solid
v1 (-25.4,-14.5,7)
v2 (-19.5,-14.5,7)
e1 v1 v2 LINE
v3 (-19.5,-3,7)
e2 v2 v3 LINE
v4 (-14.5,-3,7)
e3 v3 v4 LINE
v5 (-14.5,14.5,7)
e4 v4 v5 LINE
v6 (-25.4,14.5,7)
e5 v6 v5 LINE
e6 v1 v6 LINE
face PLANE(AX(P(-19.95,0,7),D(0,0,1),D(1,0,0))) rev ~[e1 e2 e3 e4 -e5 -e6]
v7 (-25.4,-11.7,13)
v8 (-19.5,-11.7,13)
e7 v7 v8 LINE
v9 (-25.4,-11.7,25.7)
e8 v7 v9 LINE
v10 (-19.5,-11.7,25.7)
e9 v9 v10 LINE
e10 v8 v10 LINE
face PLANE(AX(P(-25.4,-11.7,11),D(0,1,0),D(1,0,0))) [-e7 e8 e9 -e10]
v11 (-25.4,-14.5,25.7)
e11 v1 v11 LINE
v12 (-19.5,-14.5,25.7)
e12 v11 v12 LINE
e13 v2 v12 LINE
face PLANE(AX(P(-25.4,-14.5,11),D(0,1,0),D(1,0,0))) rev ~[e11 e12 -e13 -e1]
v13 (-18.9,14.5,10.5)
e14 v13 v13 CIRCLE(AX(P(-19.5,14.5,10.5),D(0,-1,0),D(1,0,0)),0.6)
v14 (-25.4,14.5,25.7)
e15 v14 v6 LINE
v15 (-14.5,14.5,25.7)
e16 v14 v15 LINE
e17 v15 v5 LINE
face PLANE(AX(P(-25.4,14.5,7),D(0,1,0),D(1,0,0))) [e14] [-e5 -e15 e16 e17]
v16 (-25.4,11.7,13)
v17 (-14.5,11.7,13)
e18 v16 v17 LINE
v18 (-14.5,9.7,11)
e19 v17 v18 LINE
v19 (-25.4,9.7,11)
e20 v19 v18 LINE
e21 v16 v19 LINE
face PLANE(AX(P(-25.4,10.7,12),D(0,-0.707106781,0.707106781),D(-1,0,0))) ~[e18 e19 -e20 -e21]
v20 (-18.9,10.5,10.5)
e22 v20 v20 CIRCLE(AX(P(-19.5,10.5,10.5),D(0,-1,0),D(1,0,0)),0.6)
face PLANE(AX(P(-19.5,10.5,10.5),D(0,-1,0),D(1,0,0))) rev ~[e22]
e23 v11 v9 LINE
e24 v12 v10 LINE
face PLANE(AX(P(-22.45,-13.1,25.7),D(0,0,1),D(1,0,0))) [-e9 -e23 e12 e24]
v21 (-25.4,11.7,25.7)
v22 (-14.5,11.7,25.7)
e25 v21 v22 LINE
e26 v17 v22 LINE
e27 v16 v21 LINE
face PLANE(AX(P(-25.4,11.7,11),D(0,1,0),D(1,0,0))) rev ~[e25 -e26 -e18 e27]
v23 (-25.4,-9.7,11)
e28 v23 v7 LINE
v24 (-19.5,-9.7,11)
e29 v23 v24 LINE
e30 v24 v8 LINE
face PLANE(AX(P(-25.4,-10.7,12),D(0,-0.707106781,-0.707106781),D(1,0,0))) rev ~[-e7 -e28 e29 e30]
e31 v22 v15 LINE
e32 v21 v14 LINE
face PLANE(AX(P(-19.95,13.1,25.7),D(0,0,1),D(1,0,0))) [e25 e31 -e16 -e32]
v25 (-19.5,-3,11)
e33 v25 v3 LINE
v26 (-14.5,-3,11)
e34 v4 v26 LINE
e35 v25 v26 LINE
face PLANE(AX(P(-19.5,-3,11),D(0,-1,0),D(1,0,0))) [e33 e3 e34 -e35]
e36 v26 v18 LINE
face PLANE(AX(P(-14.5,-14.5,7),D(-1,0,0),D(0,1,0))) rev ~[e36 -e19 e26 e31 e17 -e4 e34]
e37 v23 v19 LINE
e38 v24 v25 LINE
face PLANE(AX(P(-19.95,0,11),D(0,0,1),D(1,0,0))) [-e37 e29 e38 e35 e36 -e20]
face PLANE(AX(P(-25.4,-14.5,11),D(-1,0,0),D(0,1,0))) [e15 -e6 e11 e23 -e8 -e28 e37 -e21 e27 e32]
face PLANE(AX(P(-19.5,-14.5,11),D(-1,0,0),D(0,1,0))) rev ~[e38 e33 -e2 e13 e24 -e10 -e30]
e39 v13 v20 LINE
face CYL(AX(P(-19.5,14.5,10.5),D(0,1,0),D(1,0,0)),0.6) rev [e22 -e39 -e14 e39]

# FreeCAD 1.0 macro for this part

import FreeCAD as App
import Part
import Sketcher
from FreeCAD import Vector
Q = App.Units.Quantity


def edges_at(feature, points):
    """Names of the edges that pass closest to the given points."""
    edges = feature.Shape.Edges
    near = lambda p: min(range(len(edges)), key=lambda i: edges[i].distToShape(Part.Vertex(*p))[0])
    return sorted({f"Edge{near(p) + 1}" for p in points})

doc = App.newDocument("Part")
body = doc.addObject("PartDesign::Body", "Body")

# Sketch on XY plane
sketch1 = doc.addObject("Sketcher::SketchObject", "Sketch")
body.addObject(sketch1)
sketch1.AttachmentSupport = (doc.XY_Plane, [""])
sketch1.MapMode = "FlatFace"
sketch1.AttachmentOffset = App.Placement(Vector(0, 0, 7), App.Rotation())
sketch1.addGeometry(Part.LineSegment(Vector(-25, 14, 0), Vector(-25, -14, 0)), False)
sketch1.addGeometry(Part.LineSegment(Vector(-25, -14, 0), Vector(-14, -14, 0)), False)
sketch1.addGeometry(Part.LineSegment(Vector(-14, -14, 0), Vector(-14, 14, 0)), False)
sketch1.addGeometry(Part.LineSegment(Vector(-14, 14, 0), Vector(-25, 14, 0)), False)
sketch1.addConstraint(Sketcher.Constraint("Coincident", 0, 2, 1, 1))
sketch1.addConstraint(Sketcher.Constraint("Coincident", 1, 2, 2, 1))
sketch1.addConstraint(Sketcher.Constraint("Coincident", 2, 2, 3, 1))
sketch1.addConstraint(Sketcher.Constraint("Coincident", 3, 2, 0, 1))
sketch1.addConstraint(Sketcher.Constraint("Vertical", 0))
sketch1.addConstraint(Sketcher.Constraint("Horizontal", 1))
sketch1.addConstraint(Sketcher.Constraint("Vertical", 2))
sketch1.addConstraint(Sketcher.Constraint("Horizontal", 3))
sketch1.addConstraint(Sketcher.Constraint("DistanceY", 0, 2, 0, 1, Q("29 mm")))
sketch1.addConstraint(Sketcher.Constraint("DistanceX", 1, 1, 1, 2, Q("10.9 mm")))
sketch1.addConstraint(Sketcher.Constraint("DistanceX", 0, 2, -1, 1, Q("25.4 mm")))
sketch1.addConstraint(Sketcher.Constraint("DistanceY", 0, 2, -1, 1, Q("14.5 mm")))
pad1 = doc.addObject("PartDesign::Pad", "Pad")
body.addObject(pad1)
pad1.Profile = sketch1
pad1.Length = 4

# Sketch on XY plane
sketch2 = doc.addObject("Sketcher::SketchObject", "Sketch001")
body.addObject(sketch2)
sketch2.AttachmentSupport = (doc.XY_Plane, [""])
sketch2.MapMode = "FlatFace"
sketch2.AttachmentOffset = App.Placement(Vector(0, 0, 11), App.Rotation())
sketch2.addGeometry(Part.LineSegment(Vector(-20, -3, 0), Vector(-20, -17, 0)), False)
sketch2.addGeometry(Part.LineSegment(Vector(-20, -17, 0), Vector(-10, -17, 0)), False)
sketch2.addGeometry(Part.LineSegment(Vector(-10, -17, 0), Vector(-10, -3, 0)), False)
sketch2.addGeometry(Part.LineSegment(Vector(-10, -3, 0), Vector(-20, -3, 0)), False)
sketch2.addConstraint(Sketcher.Constraint("Coincident", 0, 2, 1, 1))
sketch2.addConstraint(Sketcher.Constraint("Coincident", 1, 2, 2, 1))
sketch2.addConstraint(Sketcher.Constraint("Coincident", 2, 2, 3, 1))
sketch2.addConstraint(Sketcher.Constraint("Coincident", 3, 2, 0, 1))
sketch2.addConstraint(Sketcher.Constraint("Vertical", 0))
sketch2.addConstraint(Sketcher.Constraint("Horizontal", 1))
sketch2.addConstraint(Sketcher.Constraint("Vertical", 2))
sketch2.addConstraint(Sketcher.Constraint("Horizontal", 3))
sketch2.addConstraint(Sketcher.Constraint("DistanceX", 1, 1, 1, 2, Q("9 mm")))
sketch2.addConstraint(Sketcher.Constraint("DistanceY", 0, 2, 0, 1, Q("14 mm")))
sketch2.addConstraint(Sketcher.Constraint("DistanceY", 0, 2, -1, 1, Q("17 mm")))
sketch2.addConstraint(Sketcher.Constraint("DistanceX", 0, 2, -1, 1, Q("19.5 mm")))
pocket1 = doc.addObject("PartDesign::Pocket", "Pocket")
body.addObject(pocket1)
pocket1.Profile = sketch2
pocket1.Type = "ThroughAll"

# Sketch on XY plane
sketch3 = doc.addObject("Sketcher::SketchObject", "Sketch002")
body.addObject(sketch3)
sketch3.AttachmentSupport = (doc.XY_Plane, [""])
sketch3.MapMode = "FlatFace"
sketch3.AttachmentOffset = App.Placement(Vector(0, 0, 11), App.Rotation())
sketch3.addGeometry(Part.LineSegment(Vector(-25.4, -11.7, 0), Vector(-25.4, -14.5, 0)), False)
sketch3.addGeometry(Part.LineSegment(Vector(-25.4, -14.5, 0), Vector(-19.5, -14.5, 0)), False)
sketch3.addGeometry(Part.LineSegment(Vector(-19.5, -14.5, 0), Vector(-19.5, -11.7, 0)), False)
sketch3.addGeometry(Part.LineSegment(Vector(-19.5, -11.7, 0), Vector(-25.4, -11.7, 0)), False)
sketch3.addGeometry(Part.LineSegment(Vector(-25.4, 14.5, 0), Vector(-25.4, 11.7, 0)), False)
sketch3.addGeometry(Part.LineSegment(Vector(-25.4, 11.7, 0), Vector(-14.5, 11.7, 0)), False)
sketch3.addGeometry(Part.LineSegment(Vector(-14.5, 11.7, 0), Vector(-14.5, 14.5, 0)), False)
sketch3.addGeometry(Part.LineSegment(Vector(-14.5, 14.5, 0), Vector(-25.4, 14.5, 0)), False)
sketch3.addConstraint(Sketcher.Constraint("Coincident", 0, 2, 1, 1))
sketch3.addConstraint(Sketcher.Constraint("Coincident", 1, 2, 2, 1))
sketch3.addConstraint(Sketcher.Constraint("Coincident", 2, 2, 3, 1))
sketch3.addConstraint(Sketcher.Constraint("Coincident", 3, 2, 0, 1))
sketch3.addConstraint(Sketcher.Constraint("Coincident", 4, 2, 5, 1))
sketch3.addConstraint(Sketcher.Constraint("Coincident", 5, 2, 6, 1))
sketch3.addConstraint(Sketcher.Constraint("Coincident", 6, 2, 7, 1))
sketch3.addConstraint(Sketcher.Constraint("Coincident", 7, 2, 4, 1))
sketch3.addConstraint(Sketcher.Constraint("Vertical", 0))
sketch3.addConstraint(Sketcher.Constraint("Horizontal", 1))
sketch3.addConstraint(Sketcher.Constraint("Vertical", 2))
sketch3.addConstraint(Sketcher.Constraint("Horizontal", 3))
sketch3.addConstraint(Sketcher.Constraint("Vertical", 4))
sketch3.addConstraint(Sketcher.Constraint("Horizontal", 5))
sketch3.addConstraint(Sketcher.Constraint("Vertical", 6))
sketch3.addConstraint(Sketcher.Constraint("Horizontal", 7))
sketch3.addConstraint(Sketcher.Constraint("Symmetric", 3, 2, 4, 2, -1))
sketch3.addConstraint(Sketcher.Constraint("Equal", 2, 4))
sketch3.addConstraint(Sketcher.Constraint("DistanceX", 1, 1, 1, 2, Q("5.9 mm")))
sketch3.addConstraint(Sketcher.Constraint("DistanceX", 5, 1, 5, 2, Q("10.9 mm")))
sketch3.addConstraint(Sketcher.Constraint("DistanceY", 0, 2, 0, 1, Q("2.8 mm")))
sketch3.addConstraint(Sketcher.Constraint("DistanceY", 1, 2, 6, 2, Q("29 mm")))
sketch3.addConstraint(Sketcher.Constraint("DistanceX", 0, 2, -1, 1, Q("25.4 mm")))
pad2 = doc.addObject("PartDesign::Pad", "Pad001")
body.addObject(pad2)
pad2.Profile = sketch3
pad2.Length = 14.7
doc.recompute()

chamfer = doc.addObject("PartDesign::Chamfer", "Chamfer")
body.addObject(chamfer)
chamfer.Base = (pad2, edges_at(pad2, [(-19.95, 11.7, 11), (-22.45, -11.7, 11)]))
chamfer.Size = 2

# Sketch on XZ plane
sketch4 = doc.addObject("Sketcher::SketchObject", "Sketch003")
body.addObject(sketch4)
sketch4.AttachmentSupport = (doc.XZ_Plane, [""])
sketch4.MapMode = "FlatFace"
sketch4.AttachmentOffset = App.Placement(Vector(0, 0, -14.5), App.Rotation())
sketch4.addGeometry(Part.Circle(Vector(-19.5, 10.5, 0), Vector(0, 0, 1), 0.6), False)
sketch4.addConstraint(Sketcher.Constraint("Diameter", 0, Q("1.2 mm")))
sketch4.addConstraint(Sketcher.Constraint("DistanceX", 0, 3, -1, 1, Q("19.5 mm")))
sketch4.addConstraint(Sketcher.Constraint("DistanceY", -1, 1, 0, 3, Q("10.5 mm")))
pocket2 = doc.addObject("PartDesign::Pocket", "Pocket001")
body.addObject(pocket2)
pocket2.Profile = sketch4
pocket2.Length = 4
pocket2.Reversed = True

doc.recompute()
